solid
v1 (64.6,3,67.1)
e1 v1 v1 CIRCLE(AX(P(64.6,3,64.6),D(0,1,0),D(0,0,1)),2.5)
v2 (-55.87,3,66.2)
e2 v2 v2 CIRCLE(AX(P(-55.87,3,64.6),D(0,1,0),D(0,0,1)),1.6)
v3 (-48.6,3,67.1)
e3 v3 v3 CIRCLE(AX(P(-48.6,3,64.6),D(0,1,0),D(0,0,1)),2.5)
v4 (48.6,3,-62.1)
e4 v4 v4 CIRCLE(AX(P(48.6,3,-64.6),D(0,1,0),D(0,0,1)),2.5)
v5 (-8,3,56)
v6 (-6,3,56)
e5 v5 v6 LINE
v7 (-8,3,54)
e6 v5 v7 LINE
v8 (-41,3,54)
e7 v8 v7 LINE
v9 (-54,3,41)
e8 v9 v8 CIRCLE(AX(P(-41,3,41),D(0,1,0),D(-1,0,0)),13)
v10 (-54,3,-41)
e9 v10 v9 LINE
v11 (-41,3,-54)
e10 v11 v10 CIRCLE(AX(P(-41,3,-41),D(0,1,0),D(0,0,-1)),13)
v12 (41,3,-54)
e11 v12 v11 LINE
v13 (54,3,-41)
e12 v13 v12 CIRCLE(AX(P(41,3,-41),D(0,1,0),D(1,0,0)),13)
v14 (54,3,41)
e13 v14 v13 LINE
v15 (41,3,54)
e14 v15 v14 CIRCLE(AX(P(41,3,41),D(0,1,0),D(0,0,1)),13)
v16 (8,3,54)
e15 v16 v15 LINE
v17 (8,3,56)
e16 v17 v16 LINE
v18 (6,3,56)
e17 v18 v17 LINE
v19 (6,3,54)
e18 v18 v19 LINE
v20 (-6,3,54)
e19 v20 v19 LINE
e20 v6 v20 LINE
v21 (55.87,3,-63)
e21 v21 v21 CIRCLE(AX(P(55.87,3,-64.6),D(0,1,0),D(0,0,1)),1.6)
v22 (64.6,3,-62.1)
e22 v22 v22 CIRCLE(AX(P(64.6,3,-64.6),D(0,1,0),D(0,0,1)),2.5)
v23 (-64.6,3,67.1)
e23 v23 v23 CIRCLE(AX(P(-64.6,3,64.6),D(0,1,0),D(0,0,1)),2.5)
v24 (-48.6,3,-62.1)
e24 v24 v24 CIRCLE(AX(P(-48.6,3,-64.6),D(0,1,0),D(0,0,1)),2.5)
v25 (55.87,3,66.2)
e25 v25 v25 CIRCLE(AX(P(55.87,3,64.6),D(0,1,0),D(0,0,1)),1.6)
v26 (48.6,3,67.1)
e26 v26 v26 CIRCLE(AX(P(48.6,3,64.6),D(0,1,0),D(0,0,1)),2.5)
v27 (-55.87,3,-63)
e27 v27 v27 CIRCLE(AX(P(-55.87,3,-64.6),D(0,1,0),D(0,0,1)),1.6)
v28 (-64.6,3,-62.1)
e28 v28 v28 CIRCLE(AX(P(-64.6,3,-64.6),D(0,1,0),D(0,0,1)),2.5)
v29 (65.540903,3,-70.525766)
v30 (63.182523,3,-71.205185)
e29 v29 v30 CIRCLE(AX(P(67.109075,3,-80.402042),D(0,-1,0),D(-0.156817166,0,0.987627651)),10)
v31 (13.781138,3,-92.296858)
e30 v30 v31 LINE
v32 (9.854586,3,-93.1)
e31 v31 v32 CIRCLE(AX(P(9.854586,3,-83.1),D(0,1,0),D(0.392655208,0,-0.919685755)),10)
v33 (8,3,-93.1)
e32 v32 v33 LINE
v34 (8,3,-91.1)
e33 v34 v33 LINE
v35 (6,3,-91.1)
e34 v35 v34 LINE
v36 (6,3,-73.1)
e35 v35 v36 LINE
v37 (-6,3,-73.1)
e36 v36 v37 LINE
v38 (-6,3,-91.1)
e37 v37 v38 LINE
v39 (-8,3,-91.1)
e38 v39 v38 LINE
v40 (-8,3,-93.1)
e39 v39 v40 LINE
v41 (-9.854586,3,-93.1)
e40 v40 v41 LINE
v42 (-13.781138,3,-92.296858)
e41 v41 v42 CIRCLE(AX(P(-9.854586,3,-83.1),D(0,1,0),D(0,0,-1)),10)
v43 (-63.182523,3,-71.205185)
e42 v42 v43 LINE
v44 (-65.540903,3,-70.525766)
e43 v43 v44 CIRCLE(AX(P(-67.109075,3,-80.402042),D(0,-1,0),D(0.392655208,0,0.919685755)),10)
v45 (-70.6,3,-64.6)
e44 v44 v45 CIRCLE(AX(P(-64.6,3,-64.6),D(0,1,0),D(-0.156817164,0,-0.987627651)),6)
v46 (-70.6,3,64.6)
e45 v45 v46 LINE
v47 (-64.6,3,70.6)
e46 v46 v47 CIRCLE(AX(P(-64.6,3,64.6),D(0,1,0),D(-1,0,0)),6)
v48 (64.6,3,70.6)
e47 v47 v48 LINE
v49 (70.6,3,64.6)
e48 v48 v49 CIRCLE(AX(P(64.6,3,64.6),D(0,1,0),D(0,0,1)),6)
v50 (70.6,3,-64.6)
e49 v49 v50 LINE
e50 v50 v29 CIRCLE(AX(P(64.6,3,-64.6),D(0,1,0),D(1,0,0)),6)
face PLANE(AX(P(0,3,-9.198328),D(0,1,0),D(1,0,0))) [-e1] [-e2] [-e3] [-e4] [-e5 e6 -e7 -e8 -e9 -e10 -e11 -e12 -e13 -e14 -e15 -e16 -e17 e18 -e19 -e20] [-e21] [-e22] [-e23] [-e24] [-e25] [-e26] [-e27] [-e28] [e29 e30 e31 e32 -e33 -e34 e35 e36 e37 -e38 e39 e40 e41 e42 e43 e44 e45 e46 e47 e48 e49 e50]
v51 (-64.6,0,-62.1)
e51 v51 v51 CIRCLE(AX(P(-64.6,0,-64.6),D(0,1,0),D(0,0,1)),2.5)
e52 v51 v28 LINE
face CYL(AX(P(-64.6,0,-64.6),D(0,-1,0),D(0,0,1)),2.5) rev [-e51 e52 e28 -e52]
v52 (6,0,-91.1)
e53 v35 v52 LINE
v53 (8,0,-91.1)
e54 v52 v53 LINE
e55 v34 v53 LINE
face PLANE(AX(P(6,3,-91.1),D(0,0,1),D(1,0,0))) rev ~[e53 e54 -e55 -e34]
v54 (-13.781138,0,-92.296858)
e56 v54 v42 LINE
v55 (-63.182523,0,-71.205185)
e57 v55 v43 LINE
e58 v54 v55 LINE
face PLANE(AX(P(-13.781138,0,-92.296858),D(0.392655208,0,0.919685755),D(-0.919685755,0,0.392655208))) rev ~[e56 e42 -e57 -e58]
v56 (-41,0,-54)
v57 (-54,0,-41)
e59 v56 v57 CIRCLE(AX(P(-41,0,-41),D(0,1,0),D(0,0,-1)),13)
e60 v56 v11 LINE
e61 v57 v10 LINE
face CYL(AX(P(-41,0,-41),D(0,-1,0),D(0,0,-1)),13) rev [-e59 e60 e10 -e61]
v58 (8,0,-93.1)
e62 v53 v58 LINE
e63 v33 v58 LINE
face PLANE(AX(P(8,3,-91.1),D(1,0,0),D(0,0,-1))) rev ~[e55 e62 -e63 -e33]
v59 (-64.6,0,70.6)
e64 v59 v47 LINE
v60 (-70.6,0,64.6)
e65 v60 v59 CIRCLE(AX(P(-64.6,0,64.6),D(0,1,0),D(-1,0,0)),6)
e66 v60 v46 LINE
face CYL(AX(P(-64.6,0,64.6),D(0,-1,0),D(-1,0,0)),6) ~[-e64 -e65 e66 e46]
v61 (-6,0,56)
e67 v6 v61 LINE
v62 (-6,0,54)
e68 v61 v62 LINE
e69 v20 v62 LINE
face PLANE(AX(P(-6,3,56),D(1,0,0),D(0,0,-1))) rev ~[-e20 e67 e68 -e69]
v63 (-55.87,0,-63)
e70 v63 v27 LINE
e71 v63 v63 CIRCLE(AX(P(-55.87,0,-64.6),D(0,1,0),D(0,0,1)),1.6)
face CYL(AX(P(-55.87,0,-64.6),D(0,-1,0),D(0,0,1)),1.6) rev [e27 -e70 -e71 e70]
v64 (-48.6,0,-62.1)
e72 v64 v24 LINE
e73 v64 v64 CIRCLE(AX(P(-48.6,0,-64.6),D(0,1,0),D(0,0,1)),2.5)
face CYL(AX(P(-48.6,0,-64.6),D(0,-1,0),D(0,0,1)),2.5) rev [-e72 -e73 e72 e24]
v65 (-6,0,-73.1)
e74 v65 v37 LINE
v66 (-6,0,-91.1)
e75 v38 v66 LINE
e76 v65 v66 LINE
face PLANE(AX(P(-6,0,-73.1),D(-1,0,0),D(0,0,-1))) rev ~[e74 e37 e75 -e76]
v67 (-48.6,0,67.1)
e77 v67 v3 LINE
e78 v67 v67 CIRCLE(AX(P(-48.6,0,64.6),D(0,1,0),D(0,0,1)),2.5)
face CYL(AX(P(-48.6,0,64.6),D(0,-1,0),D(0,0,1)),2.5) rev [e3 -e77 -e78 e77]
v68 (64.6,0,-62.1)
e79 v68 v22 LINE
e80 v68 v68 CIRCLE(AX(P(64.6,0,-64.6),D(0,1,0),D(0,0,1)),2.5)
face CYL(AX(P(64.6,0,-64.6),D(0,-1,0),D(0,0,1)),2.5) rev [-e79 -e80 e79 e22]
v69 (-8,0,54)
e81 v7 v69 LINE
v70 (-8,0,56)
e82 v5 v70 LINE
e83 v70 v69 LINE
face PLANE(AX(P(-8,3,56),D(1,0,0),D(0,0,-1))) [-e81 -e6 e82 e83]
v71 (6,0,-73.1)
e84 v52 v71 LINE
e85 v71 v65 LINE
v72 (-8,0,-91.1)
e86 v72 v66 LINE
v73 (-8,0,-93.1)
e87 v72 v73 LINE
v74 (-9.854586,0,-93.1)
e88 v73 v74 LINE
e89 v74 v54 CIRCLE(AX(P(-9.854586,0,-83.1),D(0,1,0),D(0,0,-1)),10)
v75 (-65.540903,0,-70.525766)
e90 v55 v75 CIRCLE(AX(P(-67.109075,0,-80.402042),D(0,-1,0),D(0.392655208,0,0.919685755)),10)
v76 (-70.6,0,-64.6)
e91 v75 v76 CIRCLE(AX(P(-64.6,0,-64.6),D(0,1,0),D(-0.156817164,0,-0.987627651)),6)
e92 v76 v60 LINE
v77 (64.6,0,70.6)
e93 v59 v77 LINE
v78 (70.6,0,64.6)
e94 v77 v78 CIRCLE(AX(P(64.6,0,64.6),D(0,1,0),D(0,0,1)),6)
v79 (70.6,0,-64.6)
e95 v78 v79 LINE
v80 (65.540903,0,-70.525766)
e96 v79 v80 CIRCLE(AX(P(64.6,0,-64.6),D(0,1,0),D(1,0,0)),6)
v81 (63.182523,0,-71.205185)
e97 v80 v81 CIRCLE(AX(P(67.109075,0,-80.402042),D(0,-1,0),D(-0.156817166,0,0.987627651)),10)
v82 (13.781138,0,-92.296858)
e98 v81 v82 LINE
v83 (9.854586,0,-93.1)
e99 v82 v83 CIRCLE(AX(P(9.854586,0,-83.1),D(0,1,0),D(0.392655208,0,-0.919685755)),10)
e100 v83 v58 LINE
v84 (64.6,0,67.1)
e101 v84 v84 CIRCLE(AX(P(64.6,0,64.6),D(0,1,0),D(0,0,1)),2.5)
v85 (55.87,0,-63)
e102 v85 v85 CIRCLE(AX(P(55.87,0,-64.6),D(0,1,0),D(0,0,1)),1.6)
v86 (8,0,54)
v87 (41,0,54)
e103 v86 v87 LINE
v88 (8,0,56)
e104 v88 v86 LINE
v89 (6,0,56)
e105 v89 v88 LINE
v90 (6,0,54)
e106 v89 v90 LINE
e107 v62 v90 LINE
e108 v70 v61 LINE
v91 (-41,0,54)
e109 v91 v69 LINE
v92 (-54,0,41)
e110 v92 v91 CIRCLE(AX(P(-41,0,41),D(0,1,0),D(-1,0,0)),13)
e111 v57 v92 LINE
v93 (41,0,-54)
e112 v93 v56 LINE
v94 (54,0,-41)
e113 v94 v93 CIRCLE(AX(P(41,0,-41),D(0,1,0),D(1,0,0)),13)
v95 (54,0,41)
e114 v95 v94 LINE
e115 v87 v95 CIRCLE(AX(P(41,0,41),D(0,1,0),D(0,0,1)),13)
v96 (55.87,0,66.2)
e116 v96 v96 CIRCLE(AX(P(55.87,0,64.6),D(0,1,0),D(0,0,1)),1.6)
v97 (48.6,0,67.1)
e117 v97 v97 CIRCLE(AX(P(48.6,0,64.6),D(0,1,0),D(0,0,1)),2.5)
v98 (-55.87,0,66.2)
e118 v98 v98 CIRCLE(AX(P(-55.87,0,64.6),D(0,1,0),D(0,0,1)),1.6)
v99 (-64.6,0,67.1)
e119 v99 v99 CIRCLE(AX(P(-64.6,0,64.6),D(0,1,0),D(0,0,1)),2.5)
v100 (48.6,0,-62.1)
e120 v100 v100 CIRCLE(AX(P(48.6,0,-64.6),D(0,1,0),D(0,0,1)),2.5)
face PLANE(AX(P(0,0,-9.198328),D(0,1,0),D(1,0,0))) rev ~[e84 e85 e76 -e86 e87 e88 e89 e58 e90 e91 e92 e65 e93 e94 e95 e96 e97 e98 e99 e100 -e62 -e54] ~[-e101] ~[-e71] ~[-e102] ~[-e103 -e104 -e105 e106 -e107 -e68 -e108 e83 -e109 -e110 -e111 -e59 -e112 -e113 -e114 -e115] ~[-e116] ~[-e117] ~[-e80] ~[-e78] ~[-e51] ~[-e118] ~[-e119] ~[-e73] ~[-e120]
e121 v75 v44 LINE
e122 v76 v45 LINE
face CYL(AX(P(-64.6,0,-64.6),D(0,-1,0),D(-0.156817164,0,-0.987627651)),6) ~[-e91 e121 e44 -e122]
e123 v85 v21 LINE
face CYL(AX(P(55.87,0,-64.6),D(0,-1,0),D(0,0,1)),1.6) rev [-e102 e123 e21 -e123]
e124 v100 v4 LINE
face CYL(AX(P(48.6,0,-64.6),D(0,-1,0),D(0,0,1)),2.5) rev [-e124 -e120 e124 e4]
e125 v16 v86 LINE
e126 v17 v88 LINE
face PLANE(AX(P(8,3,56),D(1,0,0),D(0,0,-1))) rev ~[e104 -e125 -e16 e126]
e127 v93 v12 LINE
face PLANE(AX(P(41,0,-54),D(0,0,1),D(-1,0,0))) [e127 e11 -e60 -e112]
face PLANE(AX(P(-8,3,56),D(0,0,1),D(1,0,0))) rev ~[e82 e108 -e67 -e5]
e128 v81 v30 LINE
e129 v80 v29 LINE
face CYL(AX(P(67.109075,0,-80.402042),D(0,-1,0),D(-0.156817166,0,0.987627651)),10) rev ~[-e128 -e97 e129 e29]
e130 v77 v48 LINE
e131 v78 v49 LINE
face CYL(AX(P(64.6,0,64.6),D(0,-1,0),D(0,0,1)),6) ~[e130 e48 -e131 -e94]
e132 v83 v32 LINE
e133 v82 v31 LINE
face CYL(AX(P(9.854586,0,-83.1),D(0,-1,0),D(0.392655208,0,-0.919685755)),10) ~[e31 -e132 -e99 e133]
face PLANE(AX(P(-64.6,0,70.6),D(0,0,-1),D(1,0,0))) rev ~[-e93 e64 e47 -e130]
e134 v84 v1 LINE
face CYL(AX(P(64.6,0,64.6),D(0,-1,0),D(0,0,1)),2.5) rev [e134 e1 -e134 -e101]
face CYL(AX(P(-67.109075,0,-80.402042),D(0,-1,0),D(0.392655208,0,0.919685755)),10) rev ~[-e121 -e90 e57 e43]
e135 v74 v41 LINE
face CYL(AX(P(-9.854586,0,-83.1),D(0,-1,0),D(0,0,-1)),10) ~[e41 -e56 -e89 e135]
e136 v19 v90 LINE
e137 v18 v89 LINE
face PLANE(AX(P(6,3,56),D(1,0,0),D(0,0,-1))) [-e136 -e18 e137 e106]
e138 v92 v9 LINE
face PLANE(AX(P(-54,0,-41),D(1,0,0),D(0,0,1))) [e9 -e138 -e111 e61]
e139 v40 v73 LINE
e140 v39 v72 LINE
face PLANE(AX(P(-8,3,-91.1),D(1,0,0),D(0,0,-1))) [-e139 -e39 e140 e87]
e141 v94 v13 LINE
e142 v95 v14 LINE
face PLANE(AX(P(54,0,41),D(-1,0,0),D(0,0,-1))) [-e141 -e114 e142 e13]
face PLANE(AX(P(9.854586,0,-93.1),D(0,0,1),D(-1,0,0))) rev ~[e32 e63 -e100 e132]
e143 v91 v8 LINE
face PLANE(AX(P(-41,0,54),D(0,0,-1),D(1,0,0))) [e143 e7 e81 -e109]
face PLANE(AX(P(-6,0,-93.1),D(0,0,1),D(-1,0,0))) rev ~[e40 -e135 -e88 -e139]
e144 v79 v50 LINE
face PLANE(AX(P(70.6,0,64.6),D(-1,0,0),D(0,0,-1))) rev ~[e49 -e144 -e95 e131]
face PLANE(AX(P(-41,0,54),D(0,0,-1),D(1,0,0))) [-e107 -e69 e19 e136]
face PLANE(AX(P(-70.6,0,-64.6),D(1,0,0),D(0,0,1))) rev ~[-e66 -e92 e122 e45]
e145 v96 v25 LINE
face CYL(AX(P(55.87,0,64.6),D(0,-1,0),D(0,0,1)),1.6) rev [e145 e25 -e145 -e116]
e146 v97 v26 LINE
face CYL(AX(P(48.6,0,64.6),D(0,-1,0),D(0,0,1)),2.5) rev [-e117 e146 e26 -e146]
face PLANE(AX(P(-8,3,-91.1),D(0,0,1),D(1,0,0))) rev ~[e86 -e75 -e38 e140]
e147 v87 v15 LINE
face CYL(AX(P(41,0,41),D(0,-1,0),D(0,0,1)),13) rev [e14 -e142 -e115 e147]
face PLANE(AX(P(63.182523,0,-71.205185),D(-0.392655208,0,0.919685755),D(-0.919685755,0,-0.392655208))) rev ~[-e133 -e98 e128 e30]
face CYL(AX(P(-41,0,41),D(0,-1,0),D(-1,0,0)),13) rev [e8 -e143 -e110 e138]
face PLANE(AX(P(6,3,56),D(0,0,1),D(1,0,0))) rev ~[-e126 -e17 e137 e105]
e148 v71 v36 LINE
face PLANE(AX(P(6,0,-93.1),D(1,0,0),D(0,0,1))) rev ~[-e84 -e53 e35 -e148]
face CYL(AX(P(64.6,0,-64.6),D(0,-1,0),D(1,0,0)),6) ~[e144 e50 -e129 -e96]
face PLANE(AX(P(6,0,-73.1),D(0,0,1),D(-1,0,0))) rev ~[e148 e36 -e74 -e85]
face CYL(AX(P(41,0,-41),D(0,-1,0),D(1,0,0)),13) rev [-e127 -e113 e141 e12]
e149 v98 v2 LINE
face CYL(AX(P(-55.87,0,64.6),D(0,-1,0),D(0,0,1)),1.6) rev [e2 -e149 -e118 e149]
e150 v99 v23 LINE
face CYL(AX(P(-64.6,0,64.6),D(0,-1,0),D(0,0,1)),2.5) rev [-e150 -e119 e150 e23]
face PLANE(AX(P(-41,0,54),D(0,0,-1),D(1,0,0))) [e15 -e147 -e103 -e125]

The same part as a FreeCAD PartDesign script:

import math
import FreeCAD as App
import Part
import Sketcher
Q = App.Units.Quantity


def add_polygon(sketch, points):
    """Adds a closed chain of lines whose ends are joined by coincident constraints."""
    first, n = sketch.GeometryCount, len(points)
    for a, b in zip(points, points[1:] + points[:1]):
        sketch.addGeometry(Part.LineSegment(App.Vector(*a, 0), App.Vector(*b, 0)), False)
    for i in range(n):
        sketch.addConstraint(Sketcher.Constraint("Coincident", first + i, 2, first + (i + 1) % n, 1))

doc = App.newDocument("Part")
body = doc.addObject("PartDesign::Body", "Body")

sketch1 = body.newObject("Sketcher::SketchObject", "Sketch")
sketch1.AttachmentSupport = (doc.getObject("XZ_Plane"), [""])
sketch1.MapMode = "FlatFace"
sketch1.addGeometry([
    Part.LineSegment(App.Vector(-64.6, 70.6, 0), App.Vector(64.6, 70.6, 0)),
    Part.ArcOfCircle(Part.Circle(App.Vector(64.6, 64.6, 0), App.Vector(0, 0, 1), 6), math.radians(0), math.radians(90)),
    Part.LineSegment(App.Vector(70.6, 64.6, 0), App.Vector(70.6, -64.6, 0)),
    Part.ArcOfCircle(Part.Circle(App.Vector(64.6, -64.6, 0), App.Vector(0, 0, 1), 6), math.radians(-81), math.radians(0)),
    Part.ArcOfCircle(Part.Circle(App.Vector(67.1, -80.4, 0), App.Vector(0, 0, 1), 10), math.radians(99.02), math.radians(113.12)),
    Part.LineSegment(App.Vector(63.2, -71.2, 0), App.Vector(13.8, -92.3, 0)),
    Part.ArcOfCircle(Part.Circle(App.Vector(9.9, -83.1, 0), App.Vector(0, 0, 1), 10), math.radians(-90), math.radians(-67)),
    Part.LineSegment(App.Vector(9.9, -93.1, 0), App.Vector(6, -93.1, 0)),
    Part.LineSegment(App.Vector(6, -93.1, 0), App.Vector(6, -73.1, 0)),
    Part.LineSegment(App.Vector(6, -73.1, 0), App.Vector(-6, -73.1, 0)),
    Part.LineSegment(App.Vector(-6, -73.1, 0), App.Vector(-6, -93.1, 0)),
    Part.LineSegment(App.Vector(-6, -93.1, 0), App.Vector(-9.9, -93.1, 0)),
    Part.ArcOfCircle(Part.Circle(App.Vector(-9.9, -83.1, 0), App.Vector(0, 0, 1), 10), math.radians(-113), math.radians(-90)),
    Part.LineSegment(App.Vector(-13.8, -92.3, 0), App.Vector(-63.2, -71.2, 0)),
    Part.ArcOfCircle(Part.Circle(App.Vector(-67.1, -80.4, 0), App.Vector(0, 0, 1), 10), math.radians(66.88), math.radians(80.98)),
    Part.ArcOfCircle(Part.Circle(App.Vector(-64.6, -64.6, 0), App.Vector(0, 0, 1), 6), math.radians(180), math.radians(261)),
    Part.LineSegment(App.Vector(-70.6, -64.6, 0), App.Vector(-70.6, 64.6, 0)),
    Part.ArcOfCircle(Part.Circle(App.Vector(-64.6, 64.6, 0), App.Vector(0, 0, 1), 6), math.radians(90), math.radians(180)),
    Part.Circle(App.Vector(-64.6, 64.6, 0), App.Vector(0, 0, 1), 2.5),
    Part.Circle(App.Vector(-55.9, 64.6, 0), App.Vector(0, 0, 1), 1.6),
    Part.Circle(App.Vector(-48.6, 64.6, 0), App.Vector(0, 0, 1), 2.5),
    Part.Circle(App.Vector(48.6, 64.6, 0), App.Vector(0, 0, 1), 2.5),
    Part.Circle(App.Vector(55.9, 64.6, 0), App.Vector(0, 0, 1), 1.6),
    Part.Circle(App.Vector(64.6, 64.6, 0), App.Vector(0, 0, 1), 2.5),
    Part.Circle(App.Vector(-64.6, -64.6, 0), App.Vector(0, 0, 1), 2.5),
    Part.Circle(App.Vector(-55.9, -64.6, 0), App.Vector(0, 0, 1), 1.6),
    Part.Circle(App.Vector(-48.6, -64.6, 0), App.Vector(0, 0, 1), 2.5),
    Part.ArcOfCircle(Part.Circle(App.Vector(-41, -41, 0), App.Vector(0, 0, 1), 13), math.radians(-180), math.radians(-90)),
    Part.LineSegment(App.Vector(-41, -54, 0), App.Vector(41, -54, 0)),
    Part.ArcOfCircle(Part.Circle(App.Vector(41, -41, 0), App.Vector(0, 0, 1), 13), math.radians(-90), math.radians(0)),
    Part.LineSegment(App.Vector(54, -41, 0), App.Vector(54, 41, 0)),
    Part.ArcOfCircle(Part.Circle(App.Vector(41, 41, 0), App.Vector(0, 0, 1), 13), math.radians(0), math.radians(90)),
    Part.LineSegment(App.Vector(41, 54, 0), App.Vector(-41, 54, 0)),
    Part.ArcOfCircle(Part.Circle(App.Vector(-41, 41, 0), App.Vector(0, 0, 1), 13), math.radians(90), math.radians(180)),
    Part.LineSegment(App.Vector(-54, 41, 0), App.Vector(-54, -41, 0)),
    Part.Circle(App.Vector(48.6, -64.6, 0), App.Vector(0, 0, 1), 2.5),
    Part.Circle(App.Vector(55.9, -64.6, 0), App.Vector(0, 0, 1), 1.6),
    Part.Circle(App.Vector(64.6, -64.6, 0), App.Vector(0, 0, 1), 2.5),
], False)
sketch1.addConstraint([
    Sketcher.Constraint("Tangent", 0, 2, 1, 2),
    Sketcher.Constraint("Tangent", 1, 1, 2, 1),
    Sketcher.Constraint("Tangent", 2, 2, 3, 2),
    Sketcher.Constraint("Tangent", 3, 1, 4, 1),
    Sketcher.Constraint("Tangent", 4, 2, 5, 1),
    Sketcher.Constraint("Tangent", 5, 2, 6, 2),
    Sketcher.Constraint("Tangent", 6, 1, 7, 1),
    Sketcher.Constraint("Coincident", 7, 2, 8, 1),
    Sketcher.Constraint("Coincident", 8, 2, 9, 1),
    Sketcher.Constraint("Coincident", 9, 2, 10, 1),
    Sketcher.Constraint("Coincident", 10, 2, 11, 1),
    Sketcher.Constraint("Tangent", 11, 2, 12, 2),
    Sketcher.Constraint("Tangent", 12, 1, 13, 1),
    Sketcher.Constraint("Tangent", 13, 2, 14, 1),
    Sketcher.Constraint("Tangent", 14, 2, 15, 2),
    Sketcher.Constraint("Tangent", 15, 1, 16, 1),
    Sketcher.Constraint("Tangent", 16, 2, 17, 2),
    Sketcher.Constraint("Tangent", 17, 1, 0, 1),
    Sketcher.Constraint("Tangent", 27, 2, 28, 1),
    Sketcher.Constraint("Tangent", 28, 2, 29, 1),
    Sketcher.Constraint("Tangent", 29, 2, 30, 1),
    Sketcher.Constraint("Tangent", 30, 2, 31, 1),
    Sketcher.Constraint("Tangent", 31, 2, 32, 1),
    Sketcher.Constraint("Tangent", 32, 2, 33, 1),
    Sketcher.Constraint("Tangent", 33, 2, 34, 1),
    Sketcher.Constraint("Tangent", 34, 2, 27, 1),
    Sketcher.Constraint("Horizontal", 0),
    Sketcher.Constraint("Vertical", 2),
    Sketcher.Constraint("Horizontal", 7),
    Sketcher.Constraint("Vertical", 8),
    Sketcher.Constraint("Horizontal", 9),
    Sketcher.Constraint("Vertical", 10),
    Sketcher.Constraint("Horizontal", 11),
    Sketcher.Constraint("Vertical", 16),
    Sketcher.Constraint("Horizontal", 28),
    Sketcher.Constraint("Vertical", 30),
    Sketcher.Constraint("Horizontal", 32),
    Sketcher.Constraint("Vertical", 34),
    Sketcher.Constraint("Coincident", 18, 3, 17, 3),
    Sketcher.Constraint("Coincident", 23, 3, 1, 3),
    Sketcher.Constraint("Coincident", 24, 3, 15, 3),
    Sketcher.Constraint("Coincident", 37, 3, 3, 3),
    Sketcher.Constraint("Equal", 1, 3),
    Sketcher.Constraint("Equal", 4, 6),
    Sketcher.Constraint("Equal", 6, 12),
    Sketcher.Constraint("Equal", 12, 14),
    Sketcher.Constraint("Equal", 3, 15),
    Sketcher.Constraint("Equal", 15, 17),
    Sketcher.Constraint("Equal", 18, 20),
    Sketcher.Constraint("Equal", 20, 21),
    Sketcher.Constraint("Equal", 19, 22),
    Sketcher.Constraint("Equal", 21, 23),
    Sketcher.Constraint("Equal", 23, 24),
    Sketcher.Constraint("Equal", 22, 25),
    Sketcher.Constraint("Equal", 24, 26),
    Sketcher.Constraint("Equal", 27, 29),
    Sketcher.Constraint("Equal", 29, 31),
    Sketcher.Constraint("Equal", 31, 33),
    Sketcher.Constraint("Equal", 26, 35),
    Sketcher.Constraint("Equal", 25, 36),
    Sketcher.Constraint("Equal", 35, 37),
    Sketcher.Constraint("Symmetric", 1, 3, 15, 3, -1, 1),
    Sketcher.Constraint("Symmetric", 22, 3, 25, 3, -1, 1),
    Sketcher.Constraint("Symmetric", 21, 3, 26, 3, -1, 1),
    Sketcher.Constraint("Symmetric", 27, 3, 31, 3, -1, 1),
    Sketcher.Constraint("Symmetric", 20, 3, 35, 3, -1, 1),
    Sketcher.Constraint("Symmetric", 19, 3, 36, 3, -1, 1),
    Sketcher.Constraint("Symmetric", 6, 3, 12, 3, -2),
    Sketcher.Constraint("Symmetric", 4, 3, 14, 3, -2),
    Sketcher.Constraint("Symmetric", 20, 3, 21, 3, -2),
    Sketcher.Constraint("Symmetric", 19, 3, 22, 3, -2),
    Sketcher.Constraint("Horizontal", 18, 3, 19, 3),
    Sketcher.Constraint("Horizontal", 19, 3, 20, 3),
    Sketcher.Constraint("Equal", 7, 11),
    Sketcher.Constraint("Equal", 0, 2),
    Sketcher.Constraint("Equal", 32, 30),
    Sketcher.Constraint("Diameter", 18, Q("5 mm")),
    Sketcher.Constraint("Radius", 1, Q("6 mm")),
    Sketcher.Constraint("Radius", 4, Q("10 mm")),
    Sketcher.Constraint("Radius", 27, Q("13 mm")),
    Sketcher.Constraint("Diameter", 19, Q("3.2 mm")),
    Sketcher.Constraint("DistanceX", 9, 2, 9, 1, Q("12 mm")),
    Sketcher.Constraint("DistanceX", 28, 1, 28, 2, Q("82 mm")),
    Sketcher.Constraint("DistanceY", 8, 1, 8, 2, Q("20 mm")),
    Sketcher.Constraint("DistanceX", 0, 1, 0, 2, Q("129.2 mm")),
    Sketcher.Constraint("DistanceX", 17, 3, 20, 3, Q("16 mm")),
    Sketcher.Constraint("DistanceY", 6, 3, -1, 1, Q("83.1 mm")),
    Sketcher.Constraint("DistanceX", 19, 3, -1, 1, Q("55.87 mm")),
    Sketcher.Constraint("DistanceX", 7, 2, 7, 1, Q("3.854586 mm")),
    Sketcher.Constraint("DistanceX", -1, 1, 5, 2, Q("13.781138 mm")),
])
pad1 = body.newObject("PartDesign::Pad", "Pad")
pad1.Profile = sketch1
pad1.Length = 3
pad1.Reversed = True

sketch2 = body.newObject("Sketcher::SketchObject", "Sketch001")
sketch2.AttachmentSupport = (doc.getObject("XZ_Plane"), [""])
sketch2.MapMode = "FlatFace"
sketch2.AttachmentOffset = App.Placement(App.Vector(0, 0, -3), App.Rotation())
add_polygon(sketch2, [(-8, -93.1), (-8, -91.1), (-6, -91.1), (-6, -93.1)])
add_polygon(sketch2, [(6, -93.1), (6, -91.1), (8, -91.1), (8, -93.1)])
add_polygon(sketch2, [(-8, 54), (-8, 56), (-6, 56), (-6, 54)])
add_polygon(sketch2, [(6, 54), (6, 56), (8, 56), (8, 54)])
sketch2.addConstraint([
    Sketcher.Constraint("Vertical", 0),
    Sketcher.Constraint("Horizontal", 1),
    Sketcher.Constraint("Vertical", 2),
    Sketcher.Constraint("Horizontal", 3),
    Sketcher.Constraint("Vertical", 4),
    Sketcher.Constraint("Horizontal", 5),
    Sketcher.Constraint("Vertical", 6),
    Sketcher.Constraint("Horizontal", 7),
    Sketcher.Constraint("Vertical", 8),
    Sketcher.Constraint("Horizontal", 9),
    Sketcher.Constraint("Vertical", 10),
    Sketcher.Constraint("Horizontal", 11),
    Sketcher.Constraint("Vertical", 12),
    Sketcher.Constraint("Horizontal", 13),
    Sketcher.Constraint("Vertical", 14),
    Sketcher.Constraint("Horizontal", 15),
    Sketcher.Constraint("Symmetric", 1, 2, 4, 2, -2),
    Sketcher.Constraint("Symmetric", 3, 2, 6, 2, -2),
    Sketcher.Constraint("Symmetric", 9, 2, 12, 2, -2),
    Sketcher.Constraint("Symmetric", 11, 2, 14, 2, -2),
    Sketcher.Constraint("Vertical", 3, 2, 8, 2),
    Sketcher.Constraint("Vertical", 2, 2, 9, 2),
    Sketcher.Constraint("Equal", 15, 0),
    Sketcher.Constraint("Equal", 6, 8),
    Sketcher.Constraint("DistanceX", 1, 1, 1, 2, Q("2 mm")),
    Sketcher.Constraint("DistanceX", 0, 2, -1, 1, Q("8 mm")),
    Sketcher.Constraint("DistanceY", -1, 1, 8, 2, Q("56 mm")),
    Sketcher.Constraint("DistanceY", 0, 2, -1, 1, Q("91.1 mm")),
])
pocket1 = body.newObject("PartDesign::Pocket", "Pocket")
pocket1.Profile = sketch2
pocket1.Type = "ThroughAll"
pocket1.Reversed = True

doc.recompute()
